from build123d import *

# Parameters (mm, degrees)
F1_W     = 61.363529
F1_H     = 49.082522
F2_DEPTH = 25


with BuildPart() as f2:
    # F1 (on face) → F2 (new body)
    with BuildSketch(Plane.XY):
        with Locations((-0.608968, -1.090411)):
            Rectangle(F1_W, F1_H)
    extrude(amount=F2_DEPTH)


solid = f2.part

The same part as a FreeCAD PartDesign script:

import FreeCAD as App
import Part
import Sketcher

doc = App.newDocument("Part")
body = doc.addObject("PartDesign::Body", "Body")

sketch1 = doc.addObject("Sketcher::SketchObject", "Sketch")
body.addObject(sketch1)
sketch1.AttachmentSupport = (doc.XY_Plane, [""])
sketch1.MapMode = "FlatFace"
sketch1.addGeometry([
    Part.LineSegment(App.Vector(-31.290733, 23.45085, 0), App.Vector(-31.290733, -25.631672, 0)),
    Part.LineSegment(App.Vector(-31.290733, -25.631672, 0), App.Vector(30.072796, -25.631672, 0)),
    Part.LineSegment(App.Vector(30.072796, -25.631672, 0), App.Vector(30.072796, 23.45085, 0)),
    Part.LineSegment(App.Vector(30.072796, 23.45085, 0), App.Vector(-31.290733, 23.45085, 0)),
], False)
sketch1.addConstraint([
    Sketcher.Constraint("Coincident", 0, 2, 1, 1),
    Sketcher.Constraint("Coincident", 1, 2, 2, 1),
    Sketcher.Constraint("Coincident", 2, 2, 3, 1),
    Sketcher.Constraint("Coincident", 3, 2, 0, 1),
    Sketcher.Constraint("Vertical", 0),
    Sketcher.Constraint("Horizontal", 1),
    Sketcher.Constraint("Vertical", 2),
    Sketcher.Constraint("Horizontal", 3),
    Sketcher.Constraint("DistanceX", 1, 1, 1, 2, 61.363529),
    Sketcher.Constraint("DistanceY", 0, 2, 0, 1, 49.082522),
    Sketcher.Constraint("DistanceY", 0, 2, -1, 1, 25.631672),
    Sketcher.Constraint("DistanceX", 0, 2, -1, 1, 31.290733),
])
pad1 = doc.addObject("PartDesign::Pad", "Pad")
body.addObject(pad1)
pad1.Profile = sketch1
pad1.Length = 25

doc.recompute()
